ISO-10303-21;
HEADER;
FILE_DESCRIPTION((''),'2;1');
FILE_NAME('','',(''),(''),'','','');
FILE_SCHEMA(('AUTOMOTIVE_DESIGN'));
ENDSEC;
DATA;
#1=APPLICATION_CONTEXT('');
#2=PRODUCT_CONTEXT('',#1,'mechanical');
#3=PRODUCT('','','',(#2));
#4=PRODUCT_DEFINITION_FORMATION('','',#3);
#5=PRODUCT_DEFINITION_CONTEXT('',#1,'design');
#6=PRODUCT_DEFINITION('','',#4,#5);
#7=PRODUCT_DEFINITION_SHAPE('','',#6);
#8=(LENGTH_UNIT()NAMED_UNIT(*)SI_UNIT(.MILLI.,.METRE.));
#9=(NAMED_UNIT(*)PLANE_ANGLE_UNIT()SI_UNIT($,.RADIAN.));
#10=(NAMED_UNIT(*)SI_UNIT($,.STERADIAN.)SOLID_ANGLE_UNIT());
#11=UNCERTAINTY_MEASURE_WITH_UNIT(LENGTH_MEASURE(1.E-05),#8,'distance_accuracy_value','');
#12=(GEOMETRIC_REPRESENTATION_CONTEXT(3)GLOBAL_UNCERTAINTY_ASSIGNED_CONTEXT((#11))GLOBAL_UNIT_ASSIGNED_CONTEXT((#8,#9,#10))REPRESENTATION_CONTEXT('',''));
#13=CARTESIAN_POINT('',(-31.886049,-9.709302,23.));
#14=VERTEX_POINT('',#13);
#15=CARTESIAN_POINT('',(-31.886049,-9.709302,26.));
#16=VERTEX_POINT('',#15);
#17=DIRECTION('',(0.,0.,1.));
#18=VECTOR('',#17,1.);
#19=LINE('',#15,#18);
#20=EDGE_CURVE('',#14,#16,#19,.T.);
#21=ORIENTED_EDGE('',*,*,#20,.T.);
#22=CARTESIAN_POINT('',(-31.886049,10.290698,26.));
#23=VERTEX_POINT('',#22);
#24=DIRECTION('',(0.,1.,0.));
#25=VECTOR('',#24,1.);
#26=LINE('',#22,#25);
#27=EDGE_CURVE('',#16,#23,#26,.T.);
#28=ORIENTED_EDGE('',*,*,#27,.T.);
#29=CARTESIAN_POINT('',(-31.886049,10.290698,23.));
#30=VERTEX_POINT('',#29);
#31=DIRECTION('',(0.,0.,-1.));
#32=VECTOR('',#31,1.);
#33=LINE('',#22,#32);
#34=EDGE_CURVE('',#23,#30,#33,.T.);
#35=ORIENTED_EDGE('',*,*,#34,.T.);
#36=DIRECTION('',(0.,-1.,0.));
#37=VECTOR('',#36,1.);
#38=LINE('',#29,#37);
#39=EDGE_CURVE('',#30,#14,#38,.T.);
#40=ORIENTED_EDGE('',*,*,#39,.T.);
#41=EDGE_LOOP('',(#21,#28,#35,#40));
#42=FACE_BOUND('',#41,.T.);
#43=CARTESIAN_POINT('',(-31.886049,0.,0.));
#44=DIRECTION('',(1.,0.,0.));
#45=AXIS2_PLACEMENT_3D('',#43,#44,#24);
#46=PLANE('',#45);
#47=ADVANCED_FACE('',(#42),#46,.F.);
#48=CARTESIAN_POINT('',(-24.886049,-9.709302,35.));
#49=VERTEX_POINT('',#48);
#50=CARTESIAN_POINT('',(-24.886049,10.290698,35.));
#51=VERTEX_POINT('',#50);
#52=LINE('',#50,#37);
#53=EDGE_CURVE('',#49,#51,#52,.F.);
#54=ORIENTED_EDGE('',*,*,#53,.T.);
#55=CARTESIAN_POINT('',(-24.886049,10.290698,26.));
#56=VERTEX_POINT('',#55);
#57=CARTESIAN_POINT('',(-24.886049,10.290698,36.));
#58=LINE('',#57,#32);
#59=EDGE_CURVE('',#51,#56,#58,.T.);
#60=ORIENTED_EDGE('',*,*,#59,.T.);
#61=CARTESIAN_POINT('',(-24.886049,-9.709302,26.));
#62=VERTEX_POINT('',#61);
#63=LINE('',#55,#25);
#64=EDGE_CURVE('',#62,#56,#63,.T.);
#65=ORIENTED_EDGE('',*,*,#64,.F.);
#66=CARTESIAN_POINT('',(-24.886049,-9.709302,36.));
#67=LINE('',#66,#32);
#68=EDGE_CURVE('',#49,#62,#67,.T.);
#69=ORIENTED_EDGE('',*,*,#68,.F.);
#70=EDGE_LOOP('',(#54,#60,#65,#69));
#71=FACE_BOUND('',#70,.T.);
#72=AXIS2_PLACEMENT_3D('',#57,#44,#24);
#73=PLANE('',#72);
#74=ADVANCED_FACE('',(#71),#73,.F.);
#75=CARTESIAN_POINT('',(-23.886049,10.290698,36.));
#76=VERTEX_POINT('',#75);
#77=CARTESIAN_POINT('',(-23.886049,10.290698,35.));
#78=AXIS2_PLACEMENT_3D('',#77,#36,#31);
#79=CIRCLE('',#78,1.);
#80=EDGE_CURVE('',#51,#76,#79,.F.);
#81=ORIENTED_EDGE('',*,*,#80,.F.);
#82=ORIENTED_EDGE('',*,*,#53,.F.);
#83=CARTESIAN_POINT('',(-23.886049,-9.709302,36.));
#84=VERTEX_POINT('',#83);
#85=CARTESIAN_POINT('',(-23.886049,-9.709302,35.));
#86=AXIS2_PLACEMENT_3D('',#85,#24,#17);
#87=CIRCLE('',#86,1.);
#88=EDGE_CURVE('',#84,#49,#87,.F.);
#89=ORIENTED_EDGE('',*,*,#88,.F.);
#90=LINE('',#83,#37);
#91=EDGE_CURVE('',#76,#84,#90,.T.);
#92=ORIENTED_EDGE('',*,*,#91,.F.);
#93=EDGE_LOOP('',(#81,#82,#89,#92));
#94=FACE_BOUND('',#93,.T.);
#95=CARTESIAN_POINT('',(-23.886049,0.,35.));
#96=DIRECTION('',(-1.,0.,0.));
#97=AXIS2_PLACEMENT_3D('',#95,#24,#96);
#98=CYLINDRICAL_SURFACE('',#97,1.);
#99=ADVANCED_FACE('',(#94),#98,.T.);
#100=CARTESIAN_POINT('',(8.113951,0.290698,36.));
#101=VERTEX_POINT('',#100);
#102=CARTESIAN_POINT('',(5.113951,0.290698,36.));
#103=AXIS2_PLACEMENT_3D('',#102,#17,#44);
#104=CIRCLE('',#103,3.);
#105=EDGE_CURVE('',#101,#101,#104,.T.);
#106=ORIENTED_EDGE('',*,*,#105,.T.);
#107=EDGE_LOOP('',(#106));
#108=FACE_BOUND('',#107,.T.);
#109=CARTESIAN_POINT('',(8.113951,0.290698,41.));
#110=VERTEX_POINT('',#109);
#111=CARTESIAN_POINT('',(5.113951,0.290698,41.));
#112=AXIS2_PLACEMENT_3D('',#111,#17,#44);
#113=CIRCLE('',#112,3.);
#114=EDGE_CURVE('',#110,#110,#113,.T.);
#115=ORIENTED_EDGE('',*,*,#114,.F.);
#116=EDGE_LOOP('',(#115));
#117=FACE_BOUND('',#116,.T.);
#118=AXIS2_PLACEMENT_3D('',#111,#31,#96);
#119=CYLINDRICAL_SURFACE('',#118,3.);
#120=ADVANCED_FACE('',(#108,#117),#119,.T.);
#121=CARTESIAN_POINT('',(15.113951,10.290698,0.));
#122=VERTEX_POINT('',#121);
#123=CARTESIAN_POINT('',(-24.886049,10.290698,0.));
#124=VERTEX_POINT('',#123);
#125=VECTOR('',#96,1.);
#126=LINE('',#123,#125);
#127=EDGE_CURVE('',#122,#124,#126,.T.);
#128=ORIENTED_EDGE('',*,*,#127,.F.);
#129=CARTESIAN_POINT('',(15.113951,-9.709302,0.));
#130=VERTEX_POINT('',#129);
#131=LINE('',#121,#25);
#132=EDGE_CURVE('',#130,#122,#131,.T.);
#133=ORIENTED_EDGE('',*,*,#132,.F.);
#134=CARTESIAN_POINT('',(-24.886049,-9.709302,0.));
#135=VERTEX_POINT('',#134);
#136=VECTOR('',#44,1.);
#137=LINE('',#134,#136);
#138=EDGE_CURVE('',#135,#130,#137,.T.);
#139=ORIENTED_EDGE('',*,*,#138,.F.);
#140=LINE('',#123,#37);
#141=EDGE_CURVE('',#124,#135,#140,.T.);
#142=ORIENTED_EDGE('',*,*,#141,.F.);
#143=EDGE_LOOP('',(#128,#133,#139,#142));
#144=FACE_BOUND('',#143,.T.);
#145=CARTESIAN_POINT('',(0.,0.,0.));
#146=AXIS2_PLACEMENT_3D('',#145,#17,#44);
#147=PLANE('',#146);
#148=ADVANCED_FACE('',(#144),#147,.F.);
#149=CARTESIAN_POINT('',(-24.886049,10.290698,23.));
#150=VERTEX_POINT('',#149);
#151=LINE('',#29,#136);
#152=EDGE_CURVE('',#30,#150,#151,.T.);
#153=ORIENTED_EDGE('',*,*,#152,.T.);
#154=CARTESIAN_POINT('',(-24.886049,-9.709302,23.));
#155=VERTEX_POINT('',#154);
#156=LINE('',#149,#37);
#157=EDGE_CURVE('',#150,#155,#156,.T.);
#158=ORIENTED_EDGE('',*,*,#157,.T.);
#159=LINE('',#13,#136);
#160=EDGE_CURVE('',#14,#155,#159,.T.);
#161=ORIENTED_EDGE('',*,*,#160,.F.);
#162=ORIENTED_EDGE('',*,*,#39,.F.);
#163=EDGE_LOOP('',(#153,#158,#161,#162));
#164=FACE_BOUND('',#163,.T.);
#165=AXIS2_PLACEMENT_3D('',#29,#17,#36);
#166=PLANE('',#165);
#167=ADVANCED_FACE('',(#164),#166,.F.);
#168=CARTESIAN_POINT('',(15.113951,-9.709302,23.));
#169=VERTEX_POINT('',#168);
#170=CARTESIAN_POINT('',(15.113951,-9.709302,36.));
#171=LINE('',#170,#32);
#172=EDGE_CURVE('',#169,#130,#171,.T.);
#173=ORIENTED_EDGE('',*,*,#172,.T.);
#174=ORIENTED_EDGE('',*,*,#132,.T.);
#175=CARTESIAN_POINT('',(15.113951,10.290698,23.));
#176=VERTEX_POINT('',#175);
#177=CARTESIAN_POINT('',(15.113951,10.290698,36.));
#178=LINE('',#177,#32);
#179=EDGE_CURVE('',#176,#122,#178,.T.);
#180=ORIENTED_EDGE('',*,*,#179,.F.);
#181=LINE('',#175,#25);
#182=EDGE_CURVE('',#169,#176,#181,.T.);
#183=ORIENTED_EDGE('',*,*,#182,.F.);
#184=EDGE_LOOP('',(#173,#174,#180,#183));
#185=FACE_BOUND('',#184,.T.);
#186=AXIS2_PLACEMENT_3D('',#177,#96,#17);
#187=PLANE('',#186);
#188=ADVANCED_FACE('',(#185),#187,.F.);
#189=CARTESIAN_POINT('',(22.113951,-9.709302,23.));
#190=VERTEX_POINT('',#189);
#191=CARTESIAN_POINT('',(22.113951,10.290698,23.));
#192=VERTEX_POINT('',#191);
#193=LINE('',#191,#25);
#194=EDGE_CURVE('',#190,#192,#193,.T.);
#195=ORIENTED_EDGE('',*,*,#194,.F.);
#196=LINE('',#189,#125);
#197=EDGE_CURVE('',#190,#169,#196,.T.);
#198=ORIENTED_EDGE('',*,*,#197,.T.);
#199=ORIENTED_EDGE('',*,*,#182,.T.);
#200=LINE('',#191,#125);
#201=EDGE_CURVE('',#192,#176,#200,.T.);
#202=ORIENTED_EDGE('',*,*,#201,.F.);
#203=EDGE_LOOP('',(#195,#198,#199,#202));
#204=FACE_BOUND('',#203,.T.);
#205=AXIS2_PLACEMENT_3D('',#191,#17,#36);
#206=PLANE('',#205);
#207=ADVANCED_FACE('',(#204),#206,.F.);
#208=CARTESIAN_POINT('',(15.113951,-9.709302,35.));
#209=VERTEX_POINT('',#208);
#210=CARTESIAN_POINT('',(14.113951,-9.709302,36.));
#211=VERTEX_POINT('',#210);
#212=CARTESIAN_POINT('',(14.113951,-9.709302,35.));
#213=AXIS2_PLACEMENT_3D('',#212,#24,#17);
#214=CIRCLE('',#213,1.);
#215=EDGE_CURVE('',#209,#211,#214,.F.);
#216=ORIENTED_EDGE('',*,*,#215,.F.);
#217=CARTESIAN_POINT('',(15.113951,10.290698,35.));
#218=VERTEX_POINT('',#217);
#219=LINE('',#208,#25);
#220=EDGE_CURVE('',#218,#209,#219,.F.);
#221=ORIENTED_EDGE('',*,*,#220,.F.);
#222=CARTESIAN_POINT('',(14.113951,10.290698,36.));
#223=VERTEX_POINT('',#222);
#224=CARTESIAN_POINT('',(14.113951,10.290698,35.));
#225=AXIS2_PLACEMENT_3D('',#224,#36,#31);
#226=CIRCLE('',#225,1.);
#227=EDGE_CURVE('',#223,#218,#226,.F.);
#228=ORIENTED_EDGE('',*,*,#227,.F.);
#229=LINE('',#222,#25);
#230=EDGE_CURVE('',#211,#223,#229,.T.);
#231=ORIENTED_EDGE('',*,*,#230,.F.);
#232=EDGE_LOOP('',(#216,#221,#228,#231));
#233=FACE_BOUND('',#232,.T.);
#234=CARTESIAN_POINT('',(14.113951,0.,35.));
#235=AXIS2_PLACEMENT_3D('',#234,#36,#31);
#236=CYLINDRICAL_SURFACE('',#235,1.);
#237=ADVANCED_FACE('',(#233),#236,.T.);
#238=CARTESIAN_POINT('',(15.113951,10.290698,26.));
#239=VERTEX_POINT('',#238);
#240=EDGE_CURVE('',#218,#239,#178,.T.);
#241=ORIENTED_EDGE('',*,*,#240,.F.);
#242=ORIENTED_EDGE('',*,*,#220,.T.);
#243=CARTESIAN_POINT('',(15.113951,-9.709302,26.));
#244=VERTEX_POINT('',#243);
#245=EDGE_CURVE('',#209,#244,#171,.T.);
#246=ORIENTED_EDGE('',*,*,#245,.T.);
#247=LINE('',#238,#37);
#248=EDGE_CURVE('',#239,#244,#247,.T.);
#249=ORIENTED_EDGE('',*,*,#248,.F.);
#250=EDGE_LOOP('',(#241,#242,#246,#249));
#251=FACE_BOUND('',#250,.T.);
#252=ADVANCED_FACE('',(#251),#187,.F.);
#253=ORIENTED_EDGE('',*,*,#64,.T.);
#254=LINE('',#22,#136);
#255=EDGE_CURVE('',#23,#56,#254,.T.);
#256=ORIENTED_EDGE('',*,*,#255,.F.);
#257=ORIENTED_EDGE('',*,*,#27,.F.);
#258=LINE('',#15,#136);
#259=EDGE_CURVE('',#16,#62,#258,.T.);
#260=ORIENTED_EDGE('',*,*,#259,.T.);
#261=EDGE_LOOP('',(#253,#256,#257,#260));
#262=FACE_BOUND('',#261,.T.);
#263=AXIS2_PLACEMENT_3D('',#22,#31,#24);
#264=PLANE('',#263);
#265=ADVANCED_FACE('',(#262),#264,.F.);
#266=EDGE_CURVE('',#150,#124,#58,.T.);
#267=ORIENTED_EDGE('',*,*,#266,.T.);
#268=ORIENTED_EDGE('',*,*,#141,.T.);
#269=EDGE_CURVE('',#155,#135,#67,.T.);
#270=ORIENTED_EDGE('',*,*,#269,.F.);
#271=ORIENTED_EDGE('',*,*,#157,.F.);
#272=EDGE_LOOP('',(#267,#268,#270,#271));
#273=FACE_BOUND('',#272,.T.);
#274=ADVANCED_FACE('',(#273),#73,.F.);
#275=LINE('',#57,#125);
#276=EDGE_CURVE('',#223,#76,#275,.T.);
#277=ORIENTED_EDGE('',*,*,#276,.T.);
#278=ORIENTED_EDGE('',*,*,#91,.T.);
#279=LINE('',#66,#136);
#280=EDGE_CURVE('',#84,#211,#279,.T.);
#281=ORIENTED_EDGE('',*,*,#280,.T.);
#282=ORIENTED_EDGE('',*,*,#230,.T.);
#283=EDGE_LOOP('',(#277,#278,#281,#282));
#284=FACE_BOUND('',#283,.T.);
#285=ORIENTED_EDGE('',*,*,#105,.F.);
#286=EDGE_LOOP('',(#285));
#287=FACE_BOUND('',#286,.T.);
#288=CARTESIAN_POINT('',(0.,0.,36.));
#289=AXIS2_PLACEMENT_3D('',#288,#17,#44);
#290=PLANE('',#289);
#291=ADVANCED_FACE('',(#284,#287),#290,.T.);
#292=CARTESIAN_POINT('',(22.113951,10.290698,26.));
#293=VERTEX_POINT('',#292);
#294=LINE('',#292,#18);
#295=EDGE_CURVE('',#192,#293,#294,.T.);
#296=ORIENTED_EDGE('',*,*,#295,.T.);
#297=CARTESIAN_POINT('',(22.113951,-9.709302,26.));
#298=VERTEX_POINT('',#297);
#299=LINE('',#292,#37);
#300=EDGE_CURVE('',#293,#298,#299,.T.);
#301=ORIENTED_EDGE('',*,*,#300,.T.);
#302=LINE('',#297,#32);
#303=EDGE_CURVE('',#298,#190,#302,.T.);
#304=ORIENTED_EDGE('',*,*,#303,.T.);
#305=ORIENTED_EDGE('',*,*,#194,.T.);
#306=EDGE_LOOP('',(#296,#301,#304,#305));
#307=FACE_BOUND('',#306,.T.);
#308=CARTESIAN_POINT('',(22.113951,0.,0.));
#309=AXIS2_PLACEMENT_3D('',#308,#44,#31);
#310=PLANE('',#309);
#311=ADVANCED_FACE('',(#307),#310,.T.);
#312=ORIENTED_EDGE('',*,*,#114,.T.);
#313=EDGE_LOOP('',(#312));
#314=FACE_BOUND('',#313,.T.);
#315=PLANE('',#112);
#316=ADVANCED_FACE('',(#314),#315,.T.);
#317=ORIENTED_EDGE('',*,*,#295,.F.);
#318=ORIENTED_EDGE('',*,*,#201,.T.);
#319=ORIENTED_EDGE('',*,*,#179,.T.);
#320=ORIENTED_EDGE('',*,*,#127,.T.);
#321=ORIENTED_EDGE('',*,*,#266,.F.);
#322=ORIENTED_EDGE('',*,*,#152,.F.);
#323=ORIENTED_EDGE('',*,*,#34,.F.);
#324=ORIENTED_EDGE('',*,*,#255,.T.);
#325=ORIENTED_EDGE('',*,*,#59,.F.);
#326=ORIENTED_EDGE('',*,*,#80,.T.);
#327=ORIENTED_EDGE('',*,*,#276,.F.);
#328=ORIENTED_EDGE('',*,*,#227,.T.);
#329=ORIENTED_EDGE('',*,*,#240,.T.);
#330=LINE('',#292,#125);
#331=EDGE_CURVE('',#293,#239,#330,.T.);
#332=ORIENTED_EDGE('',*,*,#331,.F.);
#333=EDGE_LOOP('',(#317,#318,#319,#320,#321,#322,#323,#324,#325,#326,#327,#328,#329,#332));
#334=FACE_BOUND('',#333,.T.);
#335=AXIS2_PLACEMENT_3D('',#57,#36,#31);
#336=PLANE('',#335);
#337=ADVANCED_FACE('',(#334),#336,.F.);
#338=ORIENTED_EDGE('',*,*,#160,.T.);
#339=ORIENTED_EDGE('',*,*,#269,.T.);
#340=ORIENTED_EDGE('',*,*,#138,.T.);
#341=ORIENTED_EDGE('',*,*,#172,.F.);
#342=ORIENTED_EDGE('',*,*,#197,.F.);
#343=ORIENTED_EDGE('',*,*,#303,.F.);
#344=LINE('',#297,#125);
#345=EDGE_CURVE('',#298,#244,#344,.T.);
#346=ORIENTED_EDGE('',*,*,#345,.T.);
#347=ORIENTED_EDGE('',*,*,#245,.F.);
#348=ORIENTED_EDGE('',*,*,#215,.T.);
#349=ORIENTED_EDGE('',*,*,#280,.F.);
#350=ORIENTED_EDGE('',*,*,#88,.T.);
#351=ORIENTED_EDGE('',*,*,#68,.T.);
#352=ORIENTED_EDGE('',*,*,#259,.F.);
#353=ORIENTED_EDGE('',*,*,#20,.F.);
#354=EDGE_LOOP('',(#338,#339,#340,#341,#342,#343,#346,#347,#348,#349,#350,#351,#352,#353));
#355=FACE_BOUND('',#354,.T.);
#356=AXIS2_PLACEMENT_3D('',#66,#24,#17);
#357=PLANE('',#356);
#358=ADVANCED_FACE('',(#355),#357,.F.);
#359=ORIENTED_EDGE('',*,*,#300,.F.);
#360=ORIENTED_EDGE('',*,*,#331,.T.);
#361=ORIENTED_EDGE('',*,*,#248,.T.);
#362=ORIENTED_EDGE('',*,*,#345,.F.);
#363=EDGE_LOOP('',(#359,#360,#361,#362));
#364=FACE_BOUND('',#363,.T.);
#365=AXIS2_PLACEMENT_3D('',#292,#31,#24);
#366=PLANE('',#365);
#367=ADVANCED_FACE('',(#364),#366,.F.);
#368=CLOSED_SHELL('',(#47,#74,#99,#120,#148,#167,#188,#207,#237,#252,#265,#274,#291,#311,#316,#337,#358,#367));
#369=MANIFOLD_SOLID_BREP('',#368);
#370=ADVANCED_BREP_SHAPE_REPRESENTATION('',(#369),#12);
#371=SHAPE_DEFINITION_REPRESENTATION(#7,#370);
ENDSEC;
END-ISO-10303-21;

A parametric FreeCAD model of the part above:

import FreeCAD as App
import Part
import Sketcher
from FreeCAD import Vector
Q = App.Units.Quantity


def edges_at(feature, points):
    """Names of the edges that pass closest to the given points."""
    edges = feature.Shape.Edges
    near = lambda p: min(range(len(edges)), key=lambda i: edges[i].distToShape(Part.Vertex(*p))[0])
    return sorted({f"Edge{near(p) + 1}" for p in points})


def add_polygon(sketch, points):
    """Adds a closed chain of lines whose ends are joined by coincident constraints."""
    first, n = sketch.GeometryCount, len(points)
    for a, b in zip(points, points[1:] + points[:1]):
        sketch.addGeometry(Part.LineSegment(App.Vector(*a, 0), App.Vector(*b, 0)), False)
    for i in range(n):
        sketch.addConstraint(Sketcher.Constraint("Coincident", first + i, 2, first + (i + 1) % n, 1))

doc = App.newDocument("Part")
body = doc.addObject("PartDesign::Body", "Body")

sketch1 = doc.addObject("Sketcher::SketchObject", "Sketch")
body.addObject(sketch1)
sketch1.AttachmentSupport = (doc.XY_Plane, [""])
sketch1.MapMode = "FlatFace"
add_polygon(sketch1, [(-24.886049, 10.290698), (-24.886049, -9.709302), (15.113951, -9.709302), (15.113951, 10.290698)])
sketch1.addConstraint(Sketcher.Constraint("Vertical", 0))
sketch1.addConstraint(Sketcher.Constraint("Horizontal", 1))
sketch1.addConstraint(Sketcher.Constraint("Vertical", 2))
sketch1.addConstraint(Sketcher.Constraint("Horizontal", 3))
sketch1.addConstraint(Sketcher.Constraint("DistanceX", 1, 1, 1, 2, Q("40 mm")))
sketch1.addConstraint(Sketcher.Constraint("DistanceY", 0, 2, 0, 1, Q("20 mm")))
sketch1.addConstraint(Sketcher.Constraint("DistanceX", 0, 2, -1, 1, Q("24.886049 mm")))
sketch1.addConstraint(Sketcher.Constraint("DistanceY", 0, 2, -1, 1, Q("9.709302 mm")))
pad1 = doc.addObject("PartDesign::Pad", "Pad")
body.addObject(pad1)
pad1.Profile = sketch1
pad1.Length = 36

sketch2 = doc.addObject("Sketcher::SketchObject", "Sketch001")
body.addObject(sketch2)
sketch2.AttachmentSupport = (doc.YZ_Plane, [""])
sketch2.MapMode = "FlatFace"
sketch2.AttachmentOffset = App.Placement(Vector(0, 0, 15.113951), App.Rotation())
add_polygon(sketch2, [(10.290698, 26), (-9.709302, 26), (-9.709302, 23), (10.290698, 23)])
sketch2.addConstraint(Sketcher.Constraint("Horizontal", 0))
sketch2.addConstraint(Sketcher.Constraint("Vertical", 1))
sketch2.addConstraint(Sketcher.Constraint("Horizontal", 2))
sketch2.addConstraint(Sketcher.Constraint("Vertical", 3))
sketch2.addConstraint(Sketcher.Constraint("DistanceX", 0, 2, 0, 1, Q("20 mm")))
sketch2.addConstraint(Sketcher.Constraint("DistanceY", 1, 2, 1, 1, Q("3 mm")))
sketch2.addConstraint(Sketcher.Constraint("DistanceY", -1, 1, 0, 2, Q("26 mm")))
sketch2.addConstraint(Sketcher.Constraint("DistanceX", 0, 2, -1, 1, Q("9.709302 mm")))
pad2 = doc.addObject("PartDesign::Pad", "Pad001")
body.addObject(pad2)
pad2.Profile = sketch2
pad2.Length = 7

sketch3 = doc.addObject("Sketcher::SketchObject", "Sketch002")
body.addObject(sketch3)
sketch3.AttachmentSupport = (doc.YZ_Plane, [""])
sketch3.MapMode = "FlatFace"
sketch3.AttachmentOffset = App.Placement(Vector(0, 0, -24.886049), App.Rotation())
add_polygon(sketch3, [(10.290698, 23), (-9.709302, 23), (-9.709302, 26), (10.290698, 26)])
sketch3.addConstraint(Sketcher.Constraint("Horizontal", 0))
sketch3.addConstraint(Sketcher.Constraint("Vertical", 1))
sketch3.addConstraint(Sketcher.Constraint("Horizontal", 2))
sketch3.addConstraint(Sketcher.Constraint("Vertical", 3))
sketch3.addConstraint(Sketcher.Constraint("DistanceX", 0, 2, 0, 1, Q("20 mm")))
sketch3.addConstraint(Sketcher.Constraint("DistanceY", 1, 1, 1, 2, Q("3 mm")))
sketch3.addConstraint(Sketcher.Constraint("DistanceY", -1, 1, 0, 2, Q("23 mm")))
sketch3.addConstraint(Sketcher.Constraint("DistanceX", 0, 2, -1, 1, Q("9.709302 mm")))
pad3 = doc.addObject("PartDesign::Pad", "Pad002")
body.addObject(pad3)
pad3.Profile = sketch3
pad3.Length = 7
pad3.Reversed = True

sketch4 = doc.addObject("Sketcher::SketchObject", "Sketch003")
body.addObject(sketch4)
sketch4.AttachmentSupport = (doc.XY_Plane, [""])
sketch4.MapMode = "FlatFace"
sketch4.AttachmentOffset = App.Placement(Vector(0, 0, 36), App.Rotation())
sketch4.addGeometry(Part.Circle(Vector(5.113951, 0.290698, 0), Vector(0, 0, 1), 3), False)
sketch4.addConstraint(Sketcher.Constraint("Diameter", 0, Q("6 mm")))
sketch4.addConstraint(Sketcher.Constraint("DistanceX", -1, 1, 0, 3, Q("5.113951 mm")))
sketch4.addConstraint(Sketcher.Constraint("DistanceY", -1, 1, 0, 3, Q("0.290698 mm")))
pad4 = doc.addObject("PartDesign::Pad", "Pad003")
body.addObject(pad4)
pad4.Profile = sketch4
pad4.Length = 5
doc.recompute()

fillet = doc.addObject("PartDesign::Fillet", "Fillet")
body.addObject(fillet)
fillet.Base = (pad4, edges_at(pad4, [(15.114, 0.291, 36), (-24.886, 0.291, 36)]))
fillet.Radius = 1

doc.recompute()
